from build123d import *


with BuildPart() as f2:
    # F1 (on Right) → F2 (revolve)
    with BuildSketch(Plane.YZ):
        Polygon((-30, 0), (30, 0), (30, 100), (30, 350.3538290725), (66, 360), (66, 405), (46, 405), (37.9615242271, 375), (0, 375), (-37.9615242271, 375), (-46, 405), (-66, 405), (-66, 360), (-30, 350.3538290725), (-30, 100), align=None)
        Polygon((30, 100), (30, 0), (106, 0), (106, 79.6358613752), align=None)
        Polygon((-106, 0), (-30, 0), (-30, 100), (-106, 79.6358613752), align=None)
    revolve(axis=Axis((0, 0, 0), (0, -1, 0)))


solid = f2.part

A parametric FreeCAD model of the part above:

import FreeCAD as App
import Part
import Sketcher
from FreeCAD import Vector
Q = App.Units.Quantity


def add_polygon(sketch, points):
    """Adds a closed chain of lines whose ends are joined by coincident constraints."""
    first, n = sketch.GeometryCount, len(points)
    for a, b in zip(points, points[1:] + points[:1]):
        sketch.addGeometry(Part.LineSegment(App.Vector(*a, 0), App.Vector(*b, 0)), False)
    for i in range(n):
        sketch.addConstraint(Sketcher.Constraint("Coincident", first + i, 2, first + (i + 1) % n, 1))

doc = App.newDocument("Part")
body = doc.addObject("PartDesign::Body", "Body")

# Sketch on YZ plane
sketch1 = body.newObject("Sketcher::SketchObject", "Sketch")
sketch1.AttachmentSupport = (doc.getObject("YZ_Plane"), [""])
sketch1.MapMode = "FlatFace"
add_polygon(sketch1, [(106, 0), (106, 80), (30, 100), (30, 350), (66, 360), (66, 405), (46, 405), (38, 375), (-38, 375), (-46, 405), (-66, 405), (-66, 360), (-30, 350), (-30, 100), (-106, 80), (-106, 0)])  # lines 0-15
sketch1.addConstraint([
    Sketcher.Constraint("Vertical", 0),
    Sketcher.Constraint("Vertical", 2),
    Sketcher.Constraint("Vertical", 4),
    Sketcher.Constraint("Horizontal", 5),
    Sketcher.Constraint("Horizontal", 7),
    Sketcher.Constraint("Horizontal", 9),
    Sketcher.Constraint("Vertical", 10),
    Sketcher.Constraint("Vertical", 12),
    Sketcher.Constraint("Vertical", 14),
    Sketcher.Constraint("Horizontal", 15),
    Sketcher.Constraint("Symmetric", 14, 2, 15, 2, -1, 1),
    Sketcher.Constraint("Symmetric", 5, 2, 8, 2, -2),
    Sketcher.Constraint("Symmetric", 3, 2, 10, 2, -2),
    Sketcher.Constraint("Symmetric", 2, 2, 11, 2, -2),
    Sketcher.Constraint("Perpendicular", 1, 6),
    Sketcher.Constraint("Perpendicular", 3, 8),
    Sketcher.Constraint("Perpendicular", 6, 11),
    Sketcher.Constraint("Perpendicular", 8, 13),
    Sketcher.Constraint("Horizontal", 1, 2, 12, 2),
    Sketcher.Constraint("DistanceX", 5, 2, 5, 1, 20.0),
    Sketcher.Constraint("DistanceX", 15, 1, 15, 2, 212.0),
    Sketcher.Constraint("DistanceY", 4, 1, 4, 2, 45.0),
    Sketcher.Constraint("Angle", 1, Q("165 deg")),
    Sketcher.Constraint("DistanceX", -1, 1, 1, 2, 30.0),
    Sketcher.Constraint("DistanceY", -1, 1, 1, 2, 100.0),
    Sketcher.Constraint("DistanceX", -1, 1, 3, 2, 66.0),
    Sketcher.Constraint("DistanceY", -1, 1, 3, 2, 360.0),
    Sketcher.Constraint("DistanceY", -1, 1, 6, 2, 375.0),
])
revolution = body.newObject("PartDesign::Revolution", "Revolution")
revolution.Profile = sketch1
revolution.ReferenceAxis = (sketch1, ["H_Axis"])
revolution.Angle = 360

doc.recompute()
